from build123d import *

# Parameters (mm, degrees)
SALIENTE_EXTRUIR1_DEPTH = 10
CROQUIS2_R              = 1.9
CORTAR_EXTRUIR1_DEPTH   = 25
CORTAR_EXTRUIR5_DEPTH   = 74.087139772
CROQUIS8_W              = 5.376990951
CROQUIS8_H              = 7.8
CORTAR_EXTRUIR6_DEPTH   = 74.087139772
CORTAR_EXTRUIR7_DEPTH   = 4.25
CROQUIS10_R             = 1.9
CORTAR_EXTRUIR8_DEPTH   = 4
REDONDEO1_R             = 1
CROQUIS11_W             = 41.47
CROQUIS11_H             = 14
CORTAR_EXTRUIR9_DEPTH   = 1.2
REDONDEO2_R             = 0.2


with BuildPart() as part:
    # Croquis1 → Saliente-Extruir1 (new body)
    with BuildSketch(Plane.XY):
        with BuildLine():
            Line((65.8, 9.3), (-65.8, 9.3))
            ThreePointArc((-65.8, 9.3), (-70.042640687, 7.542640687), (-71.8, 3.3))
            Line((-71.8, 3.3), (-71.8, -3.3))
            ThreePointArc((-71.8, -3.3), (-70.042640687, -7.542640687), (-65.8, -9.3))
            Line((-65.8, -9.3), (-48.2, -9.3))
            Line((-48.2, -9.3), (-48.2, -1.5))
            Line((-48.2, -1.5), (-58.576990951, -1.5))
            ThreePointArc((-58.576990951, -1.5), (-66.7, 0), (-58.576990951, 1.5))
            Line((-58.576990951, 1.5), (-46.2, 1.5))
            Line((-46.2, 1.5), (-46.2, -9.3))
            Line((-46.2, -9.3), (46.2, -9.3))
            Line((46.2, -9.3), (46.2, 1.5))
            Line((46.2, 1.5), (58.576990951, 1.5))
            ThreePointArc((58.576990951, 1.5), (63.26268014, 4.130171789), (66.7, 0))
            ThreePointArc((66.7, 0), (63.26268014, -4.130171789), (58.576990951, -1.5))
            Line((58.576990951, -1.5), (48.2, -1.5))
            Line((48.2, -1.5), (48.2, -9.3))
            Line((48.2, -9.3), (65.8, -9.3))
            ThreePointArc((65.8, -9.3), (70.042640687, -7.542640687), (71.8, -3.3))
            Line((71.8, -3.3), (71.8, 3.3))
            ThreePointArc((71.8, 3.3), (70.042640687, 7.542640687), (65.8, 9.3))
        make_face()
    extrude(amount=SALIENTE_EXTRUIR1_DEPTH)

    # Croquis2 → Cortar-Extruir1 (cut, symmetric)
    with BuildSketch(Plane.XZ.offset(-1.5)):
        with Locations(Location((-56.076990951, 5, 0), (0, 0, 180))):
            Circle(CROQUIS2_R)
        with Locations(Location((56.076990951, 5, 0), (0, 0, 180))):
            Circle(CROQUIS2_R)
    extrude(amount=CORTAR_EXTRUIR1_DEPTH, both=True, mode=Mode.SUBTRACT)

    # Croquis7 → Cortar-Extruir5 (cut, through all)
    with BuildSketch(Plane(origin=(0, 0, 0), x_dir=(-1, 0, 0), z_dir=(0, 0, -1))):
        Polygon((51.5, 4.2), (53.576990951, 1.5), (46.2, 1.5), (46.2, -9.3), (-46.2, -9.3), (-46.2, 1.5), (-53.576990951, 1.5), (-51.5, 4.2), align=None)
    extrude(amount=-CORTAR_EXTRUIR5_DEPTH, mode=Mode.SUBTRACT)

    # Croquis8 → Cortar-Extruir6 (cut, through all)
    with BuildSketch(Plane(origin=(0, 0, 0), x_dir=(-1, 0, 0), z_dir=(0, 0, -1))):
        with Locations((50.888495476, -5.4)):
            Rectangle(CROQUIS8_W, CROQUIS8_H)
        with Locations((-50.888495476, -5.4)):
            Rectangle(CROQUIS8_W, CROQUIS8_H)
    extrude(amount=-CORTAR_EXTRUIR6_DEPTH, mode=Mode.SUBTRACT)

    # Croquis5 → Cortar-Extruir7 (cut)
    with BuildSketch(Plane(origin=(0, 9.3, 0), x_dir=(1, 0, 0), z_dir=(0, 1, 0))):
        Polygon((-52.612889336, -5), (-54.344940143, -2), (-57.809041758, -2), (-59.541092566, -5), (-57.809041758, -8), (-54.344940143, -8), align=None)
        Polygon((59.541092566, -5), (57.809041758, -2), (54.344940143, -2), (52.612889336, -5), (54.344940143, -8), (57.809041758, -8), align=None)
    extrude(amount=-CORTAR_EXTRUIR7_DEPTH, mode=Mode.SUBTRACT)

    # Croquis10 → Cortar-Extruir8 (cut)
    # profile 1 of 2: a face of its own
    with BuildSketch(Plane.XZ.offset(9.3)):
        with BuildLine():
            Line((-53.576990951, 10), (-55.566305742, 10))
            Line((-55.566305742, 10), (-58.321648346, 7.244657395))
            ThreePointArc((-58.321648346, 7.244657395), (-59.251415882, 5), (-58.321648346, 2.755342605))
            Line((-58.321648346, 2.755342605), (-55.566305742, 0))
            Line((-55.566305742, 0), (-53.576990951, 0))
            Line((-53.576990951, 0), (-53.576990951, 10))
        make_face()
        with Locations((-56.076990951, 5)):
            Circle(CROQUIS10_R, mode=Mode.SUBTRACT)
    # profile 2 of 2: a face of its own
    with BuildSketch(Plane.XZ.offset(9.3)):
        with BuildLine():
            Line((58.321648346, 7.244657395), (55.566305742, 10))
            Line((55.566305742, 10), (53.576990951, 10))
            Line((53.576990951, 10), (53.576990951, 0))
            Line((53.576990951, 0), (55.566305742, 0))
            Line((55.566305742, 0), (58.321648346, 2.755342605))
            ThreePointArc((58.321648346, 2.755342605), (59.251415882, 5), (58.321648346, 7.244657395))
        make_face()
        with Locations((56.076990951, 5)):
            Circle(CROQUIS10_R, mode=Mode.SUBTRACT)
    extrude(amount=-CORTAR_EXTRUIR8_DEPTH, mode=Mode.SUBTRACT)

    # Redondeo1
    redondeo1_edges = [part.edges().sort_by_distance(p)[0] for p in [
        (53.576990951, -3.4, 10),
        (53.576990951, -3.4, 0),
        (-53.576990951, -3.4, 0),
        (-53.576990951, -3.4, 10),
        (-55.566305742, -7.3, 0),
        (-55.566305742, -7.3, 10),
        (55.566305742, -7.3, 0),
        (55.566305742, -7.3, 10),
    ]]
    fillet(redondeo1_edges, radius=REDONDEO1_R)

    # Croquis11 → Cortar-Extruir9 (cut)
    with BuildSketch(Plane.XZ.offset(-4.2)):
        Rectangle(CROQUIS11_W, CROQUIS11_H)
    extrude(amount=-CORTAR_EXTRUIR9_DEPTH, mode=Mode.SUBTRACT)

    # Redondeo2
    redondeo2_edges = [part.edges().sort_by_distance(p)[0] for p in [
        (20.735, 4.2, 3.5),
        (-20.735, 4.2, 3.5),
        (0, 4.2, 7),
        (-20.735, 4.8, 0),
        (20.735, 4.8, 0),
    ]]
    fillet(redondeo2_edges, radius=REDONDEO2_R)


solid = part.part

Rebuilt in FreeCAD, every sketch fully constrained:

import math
import FreeCAD as App
import Part
import Sketcher

V = App.Vector
Q = App.Units.Quantity


def edges_at(feature, points):
    """Names of the edges that pass closest to the given points."""
    edges = feature.Shape.Edges
    near = lambda p: min(range(len(edges)), key=lambda i: edges[i].distToShape(Part.Vertex(*p))[0])
    return sorted({f"Edge{near(p) + 1}" for p in points})


def add_polygon(sketch, points):
    """Adds a closed chain of lines whose ends are joined by coincident constraints."""
    first, n = sketch.GeometryCount, len(points)
    for a, b in zip(points, points[1:] + points[:1]):
        sketch.addGeometry(Part.LineSegment(App.Vector(*a, 0), App.Vector(*b, 0)), False)
    for i in range(n):
        sketch.addConstraint(Sketcher.Constraint("Coincident", first + i, 2, first + (i + 1) % n, 1))

doc = App.newDocument("Part")
body = doc.addObject("PartDesign::Body", "Body")

# Sketch on XY plane
sketch1 = body.newObject("Sketcher::SketchObject", "Sketch")
sketch1.AttachmentSupport = (doc.getObject("XY_Plane"), [""])
sketch1.MapMode = "FlatFace"
sketch1.addGeometry([
    Part.LineSegment(V(65.8, 9.3, 0), V(-65.8, 9.3, 0)),  # 0
    Part.ArcOfCircle(Part.Circle(V(-65.8, 3.3, 0), V(0, 0, 1), 6), math.radians(90), math.radians(180)),  # 1
    Part.LineSegment(V(-71.8, 3.3, 0), V(-71.8, -3.3, 0)),  # 2
    Part.ArcOfCircle(Part.Circle(V(-65.8, -3.3, 0), V(0, 0, 1), 6), math.radians(180), math.radians(270)),  # 3
    Part.LineSegment(V(-65.8, -9.3, 0), V(-48.2, -9.3, 0)),  # 4
    Part.LineSegment(V(-48.2, -9.3, 0), V(-48.2, -1.5, 0)),  # 5
    Part.LineSegment(V(-48.2, -1.5, 0), V(-58.6, -1.5, 0)),  # 6
    Part.ArcOfCircle(Part.Circle(V(-62.5, 0, 0), V(0, 0, 1), 4.2), math.radians(21), math.radians(339)),  # 7
    Part.LineSegment(V(-58.6, 1.5, 0), V(-46.2, 1.5, 0)),  # 8
    Part.LineSegment(V(-46.2, 1.5, 0), V(-46.2, -9.3, 0)),  # 9
    Part.LineSegment(V(-46.2, -9.3, 0), V(46.2, -9.3, 0)),  # 10
    Part.LineSegment(V(46.2, -9.3, 0), V(46.2, 1.5, 0)),  # 11
    Part.LineSegment(V(46.2, 1.5, 0), V(58.6, 1.5, 0)),  # 12
    Part.ArcOfCircle(Part.Circle(V(62.5, 0, 0), V(0, 0, 1), 4.2), math.radians(0), math.radians(159)),  # 13
    Part.ArcOfCircle(Part.Circle(V(62.5, 0, 0), V(0, 0, 1), 4.2), math.radians(-159), math.radians(0)),  # 14
    Part.LineSegment(V(58.6, -1.5, 0), V(48.2, -1.5, 0)),  # 15
    Part.LineSegment(V(48.2, -1.5, 0), V(48.2, -9.3, 0)),  # 16
    Part.LineSegment(V(48.2, -9.3, 0), V(65.8, -9.3, 0)),  # 17
    Part.ArcOfCircle(Part.Circle(V(65.8, -3.3, 0), V(0, 0, 1), 6), math.radians(-90), math.radians(0)),  # 18
    Part.LineSegment(V(71.8, -3.3, 0), V(71.8, 3.3, 0)),  # 19
    Part.ArcOfCircle(Part.Circle(V(65.8, 3.3, 0), V(0, 0, 1), 6), math.radians(0), math.radians(90)),  # 20
], False)
sketch1.addConstraint([
    Sketcher.Constraint("Tangent", 0, 2, 1, 1),
    Sketcher.Constraint("Tangent", 1, 2, 2, 1),
    Sketcher.Constraint("Tangent", 2, 2, 3, 1),
    Sketcher.Constraint("Tangent", 3, 2, 4, 1),
    Sketcher.Constraint("Coincident", 4, 2, 5, 1),
    Sketcher.Constraint("Coincident", 5, 2, 6, 1),
    Sketcher.Constraint("Coincident", 6, 2, 7, 2),
    Sketcher.Constraint("Coincident", 7, 1, 8, 1),
    Sketcher.Constraint("Coincident", 8, 2, 9, 1),
    Sketcher.Constraint("Coincident", 9, 2, 10, 1),
    Sketcher.Constraint("Coincident", 10, 2, 11, 1),
    Sketcher.Constraint("Coincident", 11, 2, 12, 1),
    Sketcher.Constraint("Coincident", 12, 2, 13, 2),
    Sketcher.Constraint("Tangent", 13, 1, 14, 2),
    Sketcher.Constraint("Coincident", 14, 1, 15, 1),
    Sketcher.Constraint("Coincident", 15, 2, 16, 1),
    Sketcher.Constraint("Coincident", 16, 2, 17, 1),
    Sketcher.Constraint("Tangent", 17, 2, 18, 1),
    Sketcher.Constraint("Tangent", 18, 2, 19, 1),
    Sketcher.Constraint("Tangent", 19, 2, 20, 1),
    Sketcher.Constraint("Tangent", 20, 2, 0, 1),
    Sketcher.Constraint("Horizontal", 0),
    Sketcher.Constraint("Vertical", 2),
    Sketcher.Constraint("Horizontal", 4),
    Sketcher.Constraint("Vertical", 5),
    Sketcher.Constraint("Horizontal", 6),
    Sketcher.Constraint("Horizontal", 8),
    Sketcher.Constraint("Vertical", 9),
    Sketcher.Constraint("Horizontal", 10),
    Sketcher.Constraint("Vertical", 11),
    Sketcher.Constraint("Horizontal", 12),
    Sketcher.Constraint("Horizontal", 15),
    Sketcher.Constraint("Vertical", 16),
    Sketcher.Constraint("Horizontal", 17),
    Sketcher.Constraint("Vertical", 19),
    Sketcher.Constraint("Equal", 1, 3),
    Sketcher.Constraint("Equal", 7, 13),
    Sketcher.Constraint("Equal", 13, 14),
    Sketcher.Constraint("Equal", 3, 18),
    Sketcher.Constraint("Equal", 18, 20),
    Sketcher.Constraint("Symmetric", 7, 3, 13, 3, -1, 1),
    Sketcher.Constraint("Symmetric", 1, 3, 18, 3, -1, 1),
    Sketcher.Constraint("Symmetric", 8, 2, 11, 2, -2),
    Sketcher.Constraint("Symmetric", 6, 2, 14, 1, -2),
    Sketcher.Constraint("Symmetric", 4, 2, 16, 2, -2),
    Sketcher.Constraint("PointOnObject", 13, 1, -1),
    Sketcher.Constraint("Horizontal", 4, 2, 9, 2),
    Sketcher.Constraint("Vertical", 6, 2, 7, 1),
    Sketcher.Constraint("Radius", 1, Q("6 mm")),
    Sketcher.Constraint("Radius", 7, Q("4.2 mm")),
    Sketcher.Constraint("DistanceX", 0, 2, 0, 1, Q("131.6 mm")),
    Sketcher.Constraint("DistanceX", 4, 1, 4, 2, Q("17.6 mm")),
    Sketcher.Constraint("DistanceX", 10, 1, 10, 2, Q("92.4 mm")),
    Sketcher.Constraint("DistanceY", 2, 2, 2, 1, Q("6.6 mm")),
    Sketcher.Constraint("DistanceY", 5, 1, 5, 2, Q("7.8 mm")),
    Sketcher.Constraint("DistanceX", 7, 3, 13, 3, Q("125 mm")),
])
pad1 = body.newObject("PartDesign::Pad", "Pad")
pad1.Profile = sketch1
pad1.Length = 10

# Sketch on XZ plane
sketch2 = body.newObject("Sketcher::SketchObject", "Sketch001")
sketch2.AttachmentSupport = (doc.getObject("XZ_Plane"), [""])
sketch2.MapMode = "FlatFace"
sketch2.AttachmentOffset = App.Placement(V(0, 0, -1.5), App.Rotation())
sketch2.addGeometry([
    Part.Circle(V(-56.1, 5, 0), V(0, 0, 1), 1.9),
    Part.Circle(V(56.1, 5, 0), V(0, 0, 1), 1.9),
], False)
sketch2.addConstraint([
    Sketcher.Constraint("Equal", 0, 1),
    Sketcher.Constraint("Symmetric", 0, 3, 1, 3, -2),
    Sketcher.Constraint("Diameter", 0, Q("3.8 mm")),
    Sketcher.Constraint("DistanceY", -1, 1, 0, 3, Q("5 mm")),
    Sketcher.Constraint("DistanceX", 0, 3, -1, 1, Q("56.076991 mm")),
])
pocket1 = body.newObject("PartDesign::Pocket", "Pocket")
pocket1.Profile = sketch2
pocket1.Length = 50
pocket1.Midplane = True

# Sketch on XY plane
sketch3 = body.newObject("Sketcher::SketchObject", "Sketch002")
sketch3.AttachmentSupport = (doc.getObject("XY_Plane"), [""])
sketch3.MapMode = "FlatFace"
add_polygon(sketch3, [(-53.6, 1.5), (-51.5, 4.2), (51.5, 4.2), (53.6, 1.5), (46.2, 1.5), (46.2, -9.3), (-46.2, -9.3), (-46.2, 1.5)])  # lines 0-7
sketch3.addConstraint([
    Sketcher.Constraint("Horizontal", 1),
    Sketcher.Constraint("Horizontal", 3),
    Sketcher.Constraint("Vertical", 4),
    Sketcher.Constraint("Horizontal", 5),
    Sketcher.Constraint("Vertical", 6),
    Sketcher.Constraint("Horizontal", 7),
    Sketcher.Constraint("Symmetric", 3, 2, 6, 2, -2),
    Sketcher.Constraint("Equal", 3, 7),
    Sketcher.Constraint("Equal", 0, 2),
    Sketcher.Constraint("DistanceX", 1, 1, 1, 2, Q("103 mm")),
    Sketcher.Constraint("DistanceX", 5, 2, 5, 1, Q("92.4 mm")),
    Sketcher.Constraint("DistanceY", 4, 2, 4, 1, Q("10.8 mm")),
    Sketcher.Constraint("DistanceY", -1, 1, 0, 2, Q("4.2 mm")),
    Sketcher.Constraint("DistanceY", -1, 1, 2, 2, Q("1.5 mm")),
    Sketcher.Constraint("DistanceX", 3, 2, 3, 1, Q("7.376991 mm")),
])
pocket2 = body.newObject("PartDesign::Pocket", "Pocket001")
pocket2.Profile = sketch3
pocket2.Type = "ThroughAll"
pocket2.Reversed = True

# Sketch on XY plane
sketch4 = body.newObject("Sketcher::SketchObject", "Sketch003")
sketch4.AttachmentSupport = (doc.getObject("XY_Plane"), [""])
sketch4.MapMode = "FlatFace"
add_polygon(sketch4, [(-48, -2), (-48, -9), (-54, -9), (-54, -2)])  # lines 0-3
add_polygon(sketch4, [(54, -2), (54, -9), (48, -9), (48, -2)])  # lines 4-7
sketch4.addConstraint([
    Sketcher.Constraint("Vertical", 0),
    Sketcher.Constraint("Horizontal", 1),
    Sketcher.Constraint("Vertical", 2),
    Sketcher.Constraint("Horizontal", 3),
    Sketcher.Constraint("Vertical", 4),
    Sketcher.Constraint("Horizontal", 5),
    Sketcher.Constraint("Vertical", 6),
    Sketcher.Constraint("Horizontal", 7),
    Sketcher.Constraint("Symmetric", 1, 2, 4, 2, -2),
    Sketcher.Constraint("Symmetric", 3, 2, 6, 2, -2),
    Sketcher.Constraint("DistanceY", 0, 2, 0, 1, Q("7.8 mm")),
    Sketcher.Constraint("DistanceX", 0, 2, -1, 1, Q("48.2 mm")),
    Sketcher.Constraint("DistanceY", 0, 2, -1, 1, Q("9.3 mm")),
    Sketcher.Constraint("DistanceX", 1, 2, 1, 1, Q("5.376991 mm")),
])
pocket3 = body.newObject("PartDesign::Pocket", "Pocket002")
pocket3.Profile = sketch4
pocket3.Type = "ThroughAll"
pocket3.Reversed = True

# Sketch on XZ plane
sketch5 = body.newObject("Sketcher::SketchObject", "Sketch004")
sketch5.AttachmentSupport = (doc.getObject("XZ_Plane"), [""])
sketch5.MapMode = "FlatFace"
sketch5.AttachmentOffset = App.Placement(V(0, 0, -9.3), App.Rotation())
add_polygon(sketch5, [(-52.6, 5), (-54.3, 2), (-57.8, 2), (-59.5, 5), (-57.8, 8), (-54.3, 8)])  # lines 0-5
add_polygon(sketch5, [(59.5, 5), (57.8, 2), (54.3, 2), (52.6, 5), (54.3, 8), (57.8, 8)])  # lines 6-11
sketch5.addConstraint([
    Sketcher.Constraint("Horizontal", 1),
    Sketcher.Constraint("Horizontal", 4),
    Sketcher.Constraint("Horizontal", 7),
    Sketcher.Constraint("Horizontal", 10),
    Sketcher.Constraint("Symmetric", 1, 2, 6, 2, -2),
    Sketcher.Constraint("Symmetric", 5, 2, 8, 2, -2),
    Sketcher.Constraint("Symmetric", 4, 2, 9, 2, -2),
    Sketcher.Constraint("Symmetric", 2, 2, 11, 2, -2),
    Sketcher.Constraint("Parallel", 0, 3),
    Sketcher.Constraint("Parallel", 2, 5),
    Sketcher.Constraint("Parallel", 3, 6),
    Sketcher.Constraint("Parallel", 5, 8),
    Sketcher.Constraint("Parallel", 8, 11),
    Sketcher.Constraint("Horizontal", 2, 2, 5, 2),
    Sketcher.Constraint("Vertical", 1, 2, 3, 2),
    Sketcher.Constraint("Angle", 0, Q("-120 deg")),
    Sketcher.Constraint("DistanceY", -1, 1, 0, 2, Q("2 mm")),
    Sketcher.Constraint("DistanceY", -1, 1, 2, 2, Q("5 mm")),
    Sketcher.Constraint("DistanceX", 1, 2, 1, 1, Q("3.464102 mm")),
    Sketcher.Constraint("DistanceX", 0, 2, -1, 1, Q("54.34494 mm")),
])
pocket4 = body.newObject("PartDesign::Pocket", "Pocket003")
pocket4.Profile = sketch5
pocket4.Length = 4.25
pocket4.Reversed = True

# Sketch on XZ plane
sketch6 = body.newObject("Sketcher::SketchObject", "Sketch005")
sketch6.AttachmentSupport = (doc.getObject("XZ_Plane"), [""])
sketch6.MapMode = "FlatFace"
sketch6.AttachmentOffset = App.Placement(V(0, 0, 9.3), App.Rotation())
sketch6.addGeometry([
    Part.LineSegment(V(-53.6, 10, 0), V(-55.6, 10, 0)),  # 0
    Part.LineSegment(V(-55.6, 10, 0), V(-58.3, 7.2, 0)),  # 1
    Part.ArcOfCircle(Part.Circle(V(-56.1, 5, 0), V(0, 0, 1), 3.2), math.radians(135), math.radians(225)),  # 2
    Part.LineSegment(V(-58.3, 2.8, 0), V(-55.6, 0, 0)),  # 3
    Part.LineSegment(V(-55.6, 0, 0), V(-53.6, 0, 0)),  # 4
    Part.LineSegment(V(-53.6, 0, 0), V(-53.6, 10, 0)),  # 5
    Part.Circle(V(-56.1, 5, 0), V(0, 0, 1), 1.9),  # 6
    Part.LineSegment(V(58.3, 7.2, 0), V(55.6, 10, 0)),  # 7
    Part.LineSegment(V(55.6, 10, 0), V(53.6, 10, 0)),  # 8
    Part.LineSegment(V(53.6, 10, 0), V(53.6, 0, 0)),  # 9
    Part.LineSegment(V(53.6, 0, 0), V(55.6, 0, 0)),  # 10
    Part.LineSegment(V(55.6, 0, 0), V(58.3, 2.8, 0)),  # 11
    Part.ArcOfCircle(Part.Circle(V(56.1, 5, 0), V(0, 0, 1), 3.2), math.radians(-45), math.radians(45)),  # 12
    Part.Circle(V(56.1, 5, 0), V(0, 0, 1), 1.9),  # 13
], False)
sketch6.addConstraint([
    Sketcher.Constraint("Coincident", 0, 2, 1, 1),
    Sketcher.Constraint("Tangent", 1, 2, 2, 1),
    Sketcher.Constraint("Tangent", 2, 2, 3, 1),
    Sketcher.Constraint("Coincident", 3, 2, 4, 1),
    Sketcher.Constraint("Coincident", 4, 2, 5, 1),
    Sketcher.Constraint("Coincident", 5, 2, 0, 1),
    Sketcher.Constraint("Coincident", 7, 2, 8, 1),
    Sketcher.Constraint("Coincident", 8, 2, 9, 1),
    Sketcher.Constraint("Coincident", 9, 2, 10, 1),
    Sketcher.Constraint("Coincident", 10, 2, 11, 1),
    Sketcher.Constraint("Tangent", 11, 2, 12, 1),
    Sketcher.Constraint("Tangent", 12, 2, 7, 1),
    Sketcher.Constraint("Horizontal", 0),
    Sketcher.Constraint("Horizontal", 4),
    Sketcher.Constraint("Vertical", 5),
    Sketcher.Constraint("Horizontal", 8),
    Sketcher.Constraint("Vertical", 9),
    Sketcher.Constraint("Horizontal", 10),
    Sketcher.Constraint("Coincident", 6, 3, 2, 3),
    Sketcher.Constraint("Coincident", 13, 3, 12, 3),
    Sketcher.Constraint("Equal", 2, 12),
    Sketcher.Constraint("Equal", 6, 13),
    Sketcher.Constraint("Symmetric", 4, 2, 9, 2, -1, 1),
    Sketcher.Constraint("Symmetric", 2, 3, 12, 3, -2),
    Sketcher.Constraint("Symmetric", 0, 2, 7, 2, -2),
    Sketcher.Constraint("Symmetric", 3, 2, 10, 2, -2),
    Sketcher.Constraint("Perpendicular", 1, 3),
    Sketcher.Constraint("Parallel", 3, 7),
    Sketcher.Constraint("Vertical", 0, 2, 3, 2),
    Sketcher.Constraint("Diameter", 6, Q("3.8 mm")),
    Sketcher.Constraint("DistanceY", 5, 1, 5, 2, Q("10 mm")),
    Sketcher.Constraint("DistanceX", 2, 3, 4, 2, Q("2.5 mm")),
    Sketcher.Constraint("Radius", 2, Q("3.174425 mm")),
    Sketcher.Constraint("DistanceX", 2, 3, -1, 1, Q("56.076991 mm")),
])
pocket5 = body.newObject("PartDesign::Pocket", "Pocket004")
pocket5.Profile = sketch6
pocket5.Length = 4
doc.recompute()

fillet = body.newObject("PartDesign::Fillet", "Fillet")
fillet.Base = (pocket5, edges_at(pocket5, [
    (53.577, -3.4, 10),
    (53.577, -3.4, 0),
    (-53.577, -3.4, 0),
    (-53.577, -3.4, 10),
    (-55.566, -7.3, 0),
    (-55.566, -7.3, 10),
    (55.566, -7.3, 0),
    (55.566, -7.3, 10),
]))
fillet.Radius = 1

# Sketch on XZ plane
sketch7 = body.newObject("Sketcher::SketchObject", "Sketch006")
sketch7.AttachmentSupport = (doc.getObject("XZ_Plane"), [""])
sketch7.MapMode = "FlatFace"
sketch7.AttachmentOffset = App.Placement(V(0, 0, -4.2), App.Rotation())
add_polygon(sketch7, [(-21, 7), (-21, -7), (21, -7), (21, 7)])  # lines 0-3
sketch7.addConstraint([
    Sketcher.Constraint("Vertical", 0),
    Sketcher.Constraint("Horizontal", 1),
    Sketcher.Constraint("Vertical", 2),
    Sketcher.Constraint("Horizontal", 3),
    Sketcher.Constraint("Symmetric", 0, 2, 2, 2, -1, 1),
    Sketcher.Constraint("DistanceY", 0, 2, 0, 1, Q("14 mm")),
    Sketcher.Constraint("DistanceX", 1, 1, 1, 2, Q("41.47 mm")),
])
pocket6 = body.newObject("PartDesign::Pocket", "Pocket005")
pocket6.Profile = sketch7
pocket6.Length = 1.2
doc.recompute()

fillet2 = body.newObject("PartDesign::Fillet", "Fillet001")
fillet2.Base = (pocket6, edges_at(pocket6, [
    (20.735, 4.2, 3.5),
    (-20.735, 4.2, 3.5),
    (0, 4.2, 7),
    (-20.735, 4.8, 0),
    (20.735, 4.8, 0),
]))
fillet2.Radius = 0.2

doc.recompute()
